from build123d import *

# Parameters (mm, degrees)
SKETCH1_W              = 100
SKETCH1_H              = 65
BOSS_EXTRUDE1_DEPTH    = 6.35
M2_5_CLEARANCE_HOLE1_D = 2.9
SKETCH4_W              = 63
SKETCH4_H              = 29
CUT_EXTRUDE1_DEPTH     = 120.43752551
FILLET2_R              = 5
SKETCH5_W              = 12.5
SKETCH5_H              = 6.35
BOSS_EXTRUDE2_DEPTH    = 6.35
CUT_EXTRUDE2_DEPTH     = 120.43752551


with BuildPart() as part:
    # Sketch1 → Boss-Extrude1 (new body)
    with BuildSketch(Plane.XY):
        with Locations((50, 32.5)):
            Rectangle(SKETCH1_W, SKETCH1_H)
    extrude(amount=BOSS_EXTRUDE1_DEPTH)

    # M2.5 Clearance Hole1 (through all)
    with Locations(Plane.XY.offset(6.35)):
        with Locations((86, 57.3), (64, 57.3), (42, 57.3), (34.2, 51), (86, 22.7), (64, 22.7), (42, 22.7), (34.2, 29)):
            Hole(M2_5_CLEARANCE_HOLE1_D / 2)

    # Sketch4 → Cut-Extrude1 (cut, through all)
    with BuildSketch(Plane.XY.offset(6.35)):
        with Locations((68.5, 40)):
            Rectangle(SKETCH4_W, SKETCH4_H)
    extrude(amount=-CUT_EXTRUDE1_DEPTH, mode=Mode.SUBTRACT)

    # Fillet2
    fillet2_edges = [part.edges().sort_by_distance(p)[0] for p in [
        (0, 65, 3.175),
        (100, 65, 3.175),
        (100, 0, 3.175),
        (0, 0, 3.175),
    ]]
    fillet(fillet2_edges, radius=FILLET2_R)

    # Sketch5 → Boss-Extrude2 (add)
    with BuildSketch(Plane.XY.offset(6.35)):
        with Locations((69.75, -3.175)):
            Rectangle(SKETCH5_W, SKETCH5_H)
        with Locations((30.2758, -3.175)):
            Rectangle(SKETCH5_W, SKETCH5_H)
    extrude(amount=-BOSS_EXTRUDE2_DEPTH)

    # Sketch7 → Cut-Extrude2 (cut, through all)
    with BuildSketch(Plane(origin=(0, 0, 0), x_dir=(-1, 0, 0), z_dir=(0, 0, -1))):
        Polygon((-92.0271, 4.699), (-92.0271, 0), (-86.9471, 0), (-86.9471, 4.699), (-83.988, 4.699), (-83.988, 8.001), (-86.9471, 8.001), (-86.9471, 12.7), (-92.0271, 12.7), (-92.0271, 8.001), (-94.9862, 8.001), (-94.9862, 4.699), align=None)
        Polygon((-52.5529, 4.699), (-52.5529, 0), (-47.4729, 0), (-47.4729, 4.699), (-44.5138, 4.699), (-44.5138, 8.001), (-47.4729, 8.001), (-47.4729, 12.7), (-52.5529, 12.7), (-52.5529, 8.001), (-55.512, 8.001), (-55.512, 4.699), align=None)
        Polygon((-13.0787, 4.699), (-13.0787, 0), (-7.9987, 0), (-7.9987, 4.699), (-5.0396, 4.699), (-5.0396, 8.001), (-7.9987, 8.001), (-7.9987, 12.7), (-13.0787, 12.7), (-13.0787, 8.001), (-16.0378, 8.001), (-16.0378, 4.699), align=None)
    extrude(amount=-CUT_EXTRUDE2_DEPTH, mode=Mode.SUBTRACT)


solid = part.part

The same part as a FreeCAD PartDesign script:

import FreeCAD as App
import Part
import Sketcher
from FreeCAD import Vector
Q = App.Units.Quantity


def edges_at(feature, points):
    """Names of the edges that pass closest to the given points."""
    edges = feature.Shape.Edges
    near = lambda p: min(range(len(edges)), key=lambda i: edges[i].distToShape(Part.Vertex(*p))[0])
    return sorted({f"Edge{near(p) + 1}" for p in points})

doc = App.newDocument("Part")
body = doc.addObject("PartDesign::Body", "Body")

# Sketch on XY plane
sketch1 = body.newObject("Sketcher::SketchObject", "Sketch")
sketch1.AttachmentSupport = (doc.getObject("XY_Plane"), [""])
sketch1.MapMode = "FlatFace"
sketch1.addGeometry([
    Part.LineSegment(Vector(0, 65, 0), Vector(0, 0, 0)),
    Part.LineSegment(Vector(0, 0, 0), Vector(100, 0, 0)),
    Part.LineSegment(Vector(100, 0, 0), Vector(100, 65, 0)),
    Part.LineSegment(Vector(100, 65, 0), Vector(0, 65, 0)),
], False)
sketch1.addConstraint([
    Sketcher.Constraint("Coincident", 0, 2, 1, 1),
    Sketcher.Constraint("Coincident", 1, 2, 2, 1),
    Sketcher.Constraint("Coincident", 2, 2, 3, 1),
    Sketcher.Constraint("Coincident", 3, 2, 0, 1),
    Sketcher.Constraint("Vertical", 0),
    Sketcher.Constraint("Horizontal", 1),
    Sketcher.Constraint("Vertical", 2),
    Sketcher.Constraint("Horizontal", 3),
    Sketcher.Constraint("Coincident", 0, 2, -1, 1),
    Sketcher.Constraint("DistanceX", 1, 1, 1, 2, Q("100 mm")),
    Sketcher.Constraint("DistanceY", 0, 2, 0, 1, Q("65 mm")),
])
pad1 = body.newObject("PartDesign::Pad", "Pad")
pad1.Profile = sketch1
pad1.Length = 6.35

# Sketch on XY plane
sketch2 = body.newObject("Sketcher::SketchObject", "Sketch001")
sketch2.AttachmentSupport = (doc.getObject("XY_Plane"), [""])
sketch2.MapMode = "FlatFace"
sketch2.AttachmentOffset = App.Placement(Vector(0, 0, 6.35), App.Rotation())
sketch2.addGeometry([
    Part.Circle(Vector(86, 57.3, 0), Vector(0, 0, 1), 1.45),  # 0
    Part.Circle(Vector(64, 57.3, 0), Vector(0, 0, 1), 1.45),  # 1
    Part.Circle(Vector(42, 57.3, 0), Vector(0, 0, 1), 1.45),  # 2
    Part.Circle(Vector(34.2, 51, 0), Vector(0, 0, 1), 1.45),  # 3
    Part.Circle(Vector(86, 22.7, 0), Vector(0, 0, 1), 1.45),  # 4
    Part.Circle(Vector(64, 22.7, 0), Vector(0, 0, 1), 1.45),  # 5
    Part.Circle(Vector(42, 22.7, 0), Vector(0, 0, 1), 1.45),  # 6
    Part.Circle(Vector(34.2, 29, 0), Vector(0, 0, 1), 1.45),  # 7
], False)
sketch2.addConstraint([
    Sketcher.Constraint("Equal", 0, 1),
    Sketcher.Constraint("Equal", 1, 2),
    Sketcher.Constraint("Equal", 2, 3),
    Sketcher.Constraint("Equal", 3, 4),
    Sketcher.Constraint("Equal", 4, 5),
    Sketcher.Constraint("Equal", 5, 6),
    Sketcher.Constraint("Equal", 6, 7),
    Sketcher.Constraint("Horizontal", 0, 3, 1, 3),
    Sketcher.Constraint("Horizontal", 1, 3, 2, 3),
    Sketcher.Constraint("Horizontal", 4, 3, 5, 3),
    Sketcher.Constraint("Horizontal", 5, 3, 6, 3),
    Sketcher.Constraint("Vertical", 0, 3, 4, 3),
    Sketcher.Constraint("Vertical", 1, 3, 5, 3),
    Sketcher.Constraint("Vertical", 2, 3, 6, 3),
    Sketcher.Constraint("Vertical", 3, 3, 7, 3),
    Sketcher.Constraint("Diameter", 0, Q("2.9 mm")),
    Sketcher.Constraint("DistanceX", -1, 1, 0, 3, Q("86 mm")),
    Sketcher.Constraint("DistanceX", -1, 1, 1, 3, Q("64 mm")),
    Sketcher.Constraint("DistanceX", -1, 1, 2, 3, Q("42 mm")),
    Sketcher.Constraint("DistanceY", -1, 1, 3, 3, Q("51 mm")),
    Sketcher.Constraint("DistanceY", -1, 1, 7, 3, Q("29 mm")),
    Sketcher.Constraint("DistanceY", -1, 1, 0, 3, Q("57.3 mm")),
    Sketcher.Constraint("DistanceX", -1, 1, 3, 3, Q("34.2 mm")),
    Sketcher.Constraint("DistanceY", -1, 1, 4, 3, Q("22.7 mm")),
])
doc.recompute()
hole = body.newObject("PartDesign::Hole", "Hole")
hole.Profile = sketch2
hole.ThreadType = "None"
hole.Diameter = 2.9
hole.DepthType = "ThroughAll"

# Sketch on XY plane
sketch3 = body.newObject("Sketcher::SketchObject", "Sketch002")
sketch3.AttachmentSupport = (doc.getObject("XY_Plane"), [""])
sketch3.MapMode = "FlatFace"
sketch3.AttachmentOffset = App.Placement(Vector(0, 0, 6.35), App.Rotation())
sketch3.addGeometry([
    Part.LineSegment(Vector(37, 54.5, 0), Vector(37, 25.5, 0)),
    Part.LineSegment(Vector(37, 25.5, 0), Vector(100, 25.5, 0)),
    Part.LineSegment(Vector(100, 25.5, 0), Vector(100, 54.5, 0)),
    Part.LineSegment(Vector(100, 54.5, 0), Vector(37, 54.5, 0)),
], False)
sketch3.addConstraint([
    Sketcher.Constraint("Coincident", 0, 2, 1, 1),
    Sketcher.Constraint("Coincident", 1, 2, 2, 1),
    Sketcher.Constraint("Coincident", 2, 2, 3, 1),
    Sketcher.Constraint("Coincident", 3, 2, 0, 1),
    Sketcher.Constraint("Vertical", 0),
    Sketcher.Constraint("Horizontal", 1),
    Sketcher.Constraint("Vertical", 2),
    Sketcher.Constraint("Horizontal", 3),
    Sketcher.Constraint("DistanceX", 1, 1, 1, 2, Q("63 mm")),
    Sketcher.Constraint("DistanceY", 0, 2, 0, 1, Q("29 mm")),
    Sketcher.Constraint("DistanceX", -1, 1, 0, 2, Q("37 mm")),
    Sketcher.Constraint("DistanceY", -1, 1, 0, 2, Q("25.5 mm")),
])
pocket1 = body.newObject("PartDesign::Pocket", "Pocket")
pocket1.Profile = sketch3
pocket1.Type = "ThroughAll"
doc.recompute()

fillet = body.newObject("PartDesign::Fillet", "Fillet")
fillet.Base = (pocket1, edges_at(pocket1, [
    (0, 65, 3.175),
    (100, 65, 3.175),
    (100, 0, 3.175),
    (0, 0, 3.175),
]))
fillet.Radius = 5

# Sketch on XY plane
sketch4 = body.newObject("Sketcher::SketchObject", "Sketch003")
sketch4.AttachmentSupport = (doc.getObject("XY_Plane"), [""])
sketch4.MapMode = "FlatFace"
sketch4.AttachmentOffset = App.Placement(Vector(0, 0, 6.35), App.Rotation())
sketch4.addGeometry([
    Part.LineSegment(Vector(63.5, 0, 0), Vector(63.5, -6.35, 0)),  # 0
    Part.LineSegment(Vector(63.5, -6.35, 0), Vector(76, -6.35, 0)),  # 1
    Part.LineSegment(Vector(76, -6.35, 0), Vector(76, 0, 0)),  # 2
    Part.LineSegment(Vector(76, 0, 0), Vector(63.5, 0, 0)),  # 3
    Part.LineSegment(Vector(24.0258, 0, 0), Vector(24.0258, -6.35, 0)),  # 4
    Part.LineSegment(Vector(24.0258, -6.35, 0), Vector(36.5258, -6.35, 0)),  # 5
    Part.LineSegment(Vector(36.5258, -6.35, 0), Vector(36.5258, 0, 0)),  # 6
    Part.LineSegment(Vector(36.5258, 0, 0), Vector(24.0258, 0, 0)),  # 7
], False)
sketch4.addConstraint([
    Sketcher.Constraint("Coincident", 0, 2, 1, 1),
    Sketcher.Constraint("Coincident", 1, 2, 2, 1),
    Sketcher.Constraint("Coincident", 2, 2, 3, 1),
    Sketcher.Constraint("Coincident", 3, 2, 0, 1),
    Sketcher.Constraint("Coincident", 4, 2, 5, 1),
    Sketcher.Constraint("Coincident", 5, 2, 6, 1),
    Sketcher.Constraint("Coincident", 6, 2, 7, 1),
    Sketcher.Constraint("Coincident", 7, 2, 4, 1),
    Sketcher.Constraint("Vertical", 0),
    Sketcher.Constraint("Horizontal", 1),
    Sketcher.Constraint("Vertical", 2),
    Sketcher.Constraint("Horizontal", 3),
    Sketcher.Constraint("Vertical", 4),
    Sketcher.Constraint("Horizontal", 5),
    Sketcher.Constraint("Vertical", 6),
    Sketcher.Constraint("Horizontal", 7),
    Sketcher.Constraint("PointOnObject", 2, 2, -1),
    Sketcher.Constraint("PointOnObject", 6, 2, -1),
    Sketcher.Constraint("Horizontal", 1, 2, 4, 2),
    Sketcher.Constraint("Equal", 3, 5),
    Sketcher.Constraint("DistanceX", 1, 1, 1, 2, Q("12.5 mm")),
    Sketcher.Constraint("DistanceX", -1, 1, 1, 2, Q("76 mm")),
    Sketcher.Constraint("DistanceY", 0, 2, 0, 1, Q("6.35 mm")),
    Sketcher.Constraint("DistanceX", -1, 1, 4, 2, Q("24.0258 mm")),
])
pad2 = body.newObject("PartDesign::Pad", "Pad001")
pad2.Profile = sketch4
pad2.Length = 6.35
pad2.Reversed = True

# Sketch on XY plane
sketch5 = body.newObject("Sketcher::SketchObject", "Sketch004")
sketch5.AttachmentSupport = (doc.getObject("XY_Plane"), [""])
sketch5.MapMode = "FlatFace"
sketch5.addGeometry([
    Part.LineSegment(Vector(92.0271, 4.699, 0), Vector(92.0271, 0, 0)),  # 0
    Part.LineSegment(Vector(92.0271, 0, 0), Vector(86.9471, 0, 0)),  # 1
    Part.LineSegment(Vector(86.9471, 0, 0), Vector(86.9471, 4.699, 0)),  # 2
    Part.LineSegment(Vector(86.9471, 4.699, 0), Vector(83.988, 4.699, 0)),  # 3
    Part.LineSegment(Vector(83.988, 4.699, 0), Vector(83.988, 8.001, 0)),  # 4
    Part.LineSegment(Vector(83.988, 8.001, 0), Vector(86.9471, 8.001, 0)),  # 5
    Part.LineSegment(Vector(86.9471, 8.001, 0), Vector(86.9471, 12.7, 0)),  # 6
    Part.LineSegment(Vector(86.9471, 12.7, 0), Vector(92.0271, 12.7, 0)),  # 7
    Part.LineSegment(Vector(92.0271, 12.7, 0), Vector(92.0271, 8.001, 0)),  # 8
    Part.LineSegment(Vector(92.0271, 8.001, 0), Vector(94.9862, 8.001, 0)),  # 9
    Part.LineSegment(Vector(94.9862, 8.001, 0), Vector(94.9862, 4.699, 0)),  # 10
    Part.LineSegment(Vector(94.9862, 4.699, 0), Vector(92.0271, 4.699, 0)),  # 11
    Part.LineSegment(Vector(52.5529, 4.699, 0), Vector(52.5529, 0, 0)),  # 12
    Part.LineSegment(Vector(52.5529, 0, 0), Vector(47.4729, 0, 0)),  # 13
    Part.LineSegment(Vector(47.4729, 0, 0), Vector(47.4729, 4.699, 0)),  # 14
    Part.LineSegment(Vector(47.4729, 4.699, 0), Vector(44.5138, 4.699, 0)),  # 15
    Part.LineSegment(Vector(44.5138, 4.699, 0), Vector(44.5138, 8.001, 0)),  # 16
    Part.LineSegment(Vector(44.5138, 8.001, 0), Vector(47.4729, 8.001, 0)),  # 17
    Part.LineSegment(Vector(47.4729, 8.001, 0), Vector(47.4729, 12.7, 0)),  # 18
    Part.LineSegment(Vector(47.4729, 12.7, 0), Vector(52.5529, 12.7, 0)),  # 19
    Part.LineSegment(Vector(52.5529, 12.7, 0), Vector(52.5529, 8.001, 0)),  # 20
    Part.LineSegment(Vector(52.5529, 8.001, 0), Vector(55.512, 8.001, 0)),  # 21
    Part.LineSegment(Vector(55.512, 8.001, 0), Vector(55.512, 4.699, 0)),  # 22
    Part.LineSegment(Vector(55.512, 4.699, 0), Vector(52.5529, 4.699, 0)),  # 23
    Part.LineSegment(Vector(13.0787, 4.699, 0), Vector(13.0787, 0, 0)),  # 24
    Part.LineSegment(Vector(13.0787, 0, 0), Vector(7.9987, 0, 0)),  # 25
    Part.LineSegment(Vector(7.9987, 0, 0), Vector(7.9987, 4.699, 0)),  # 26
    Part.LineSegment(Vector(7.9987, 4.699, 0), Vector(5.0396, 4.699, 0)),  # 27
    Part.LineSegment(Vector(5.0396, 4.699, 0), Vector(5.0396, 8.001, 0)),  # 28
    Part.LineSegment(Vector(5.0396, 8.001, 0), Vector(7.9987, 8.001, 0)),  # 29
    Part.LineSegment(Vector(7.9987, 8.001, 0), Vector(7.9987, 12.7, 0)),  # 30
    Part.LineSegment(Vector(7.9987, 12.7, 0), Vector(13.0787, 12.7, 0)),  # 31
    Part.LineSegment(Vector(13.0787, 12.7, 0), Vector(13.0787, 8.001, 0)),  # 32
    Part.LineSegment(Vector(13.0787, 8.001, 0), Vector(16.0378, 8.001, 0)),  # 33
    Part.LineSegment(Vector(16.0378, 8.001, 0), Vector(16.0378, 4.699, 0)),  # 34
    Part.LineSegment(Vector(16.0378, 4.699, 0), Vector(13.0787, 4.699, 0)),  # 35
], False)
sketch5.addConstraint([
    Sketcher.Constraint("Coincident", 0, 2, 1, 1),
    Sketcher.Constraint("Coincident", 1, 2, 2, 1),
    Sketcher.Constraint("Coincident", 2, 2, 3, 1),
    Sketcher.Constraint("Coincident", 3, 2, 4, 1),
    Sketcher.Constraint("Coincident", 4, 2, 5, 1),
    Sketcher.Constraint("Coincident", 5, 2, 6, 1),
    Sketcher.Constraint("Coincident", 6, 2, 7, 1),
    Sketcher.Constraint("Coincident", 7, 2, 8, 1),
    Sketcher.Constraint("Coincident", 8, 2, 9, 1),
    Sketcher.Constraint("Coincident", 9, 2, 10, 1),
    Sketcher.Constraint("Coincident", 10, 2, 11, 1),
    Sketcher.Constraint("Coincident", 11, 2, 0, 1),
    Sketcher.Constraint("Coincident", 12, 2, 13, 1),
    Sketcher.Constraint("Coincident", 13, 2, 14, 1),
    Sketcher.Constraint("Coincident", 14, 2, 15, 1),
    Sketcher.Constraint("Coincident", 15, 2, 16, 1),
    Sketcher.Constraint("Coincident", 16, 2, 17, 1),
    Sketcher.Constraint("Coincident", 17, 2, 18, 1),
    Sketcher.Constraint("Coincident", 18, 2, 19, 1),
    Sketcher.Constraint("Coincident", 19, 2, 20, 1),
    Sketcher.Constraint("Coincident", 20, 2, 21, 1),
    Sketcher.Constraint("Coincident", 21, 2, 22, 1),
    Sketcher.Constraint("Coincident", 22, 2, 23, 1),
    Sketcher.Constraint("Coincident", 23, 2, 12, 1),
    Sketcher.Constraint("Coincident", 24, 2, 25, 1),
    Sketcher.Constraint("Coincident", 25, 2, 26, 1),
    Sketcher.Constraint("Coincident", 26, 2, 27, 1),
    Sketcher.Constraint("Coincident", 27, 2, 28, 1),
    Sketcher.Constraint("Coincident", 28, 2, 29, 1),
    Sketcher.Constraint("Coincident", 29, 2, 30, 1),
    Sketcher.Constraint("Coincident", 30, 2, 31, 1),
    Sketcher.Constraint("Coincident", 31, 2, 32, 1),
    Sketcher.Constraint("Coincident", 32, 2, 33, 1),
    Sketcher.Constraint("Coincident", 33, 2, 34, 1),
    Sketcher.Constraint("Coincident", 34, 2, 35, 1),
    Sketcher.Constraint("Coincident", 35, 2, 24, 1),
    Sketcher.Constraint("Vertical", 0),
    Sketcher.Constraint("Horizontal", 1),
    Sketcher.Constraint("Vertical", 2),
    Sketcher.Constraint("Horizontal", 3),
    Sketcher.Constraint("Vertical", 4),
    Sketcher.Constraint("Horizontal", 5),
    Sketcher.Constraint("Vertical", 6),
    Sketcher.Constraint("Horizontal", 7),
    Sketcher.Constraint("Vertical", 8),
    Sketcher.Constraint("Horizontal", 9),
    Sketcher.Constraint("Vertical", 10),
    Sketcher.Constraint("Horizontal", 11),
    Sketcher.Constraint("Vertical", 12),
    Sketcher.Constraint("Horizontal", 13),
    Sketcher.Constraint("Vertical", 14),
    Sketcher.Constraint("Horizontal", 15),
    Sketcher.Constraint("Vertical", 16),
    Sketcher.Constraint("Horizontal", 17),
    Sketcher.Constraint("Vertical", 18),
    Sketcher.Constraint("Horizontal", 19),
    Sketcher.Constraint("Vertical", 20),
    Sketcher.Constraint("Horizontal", 21),
    Sketcher.Constraint("Vertical", 22),
    Sketcher.Constraint("Horizontal", 23),
    Sketcher.Constraint("Vertical", 24),
    Sketcher.Constraint("Horizontal", 25),
    Sketcher.Constraint("Vertical", 26),
    Sketcher.Constraint("Horizontal", 27),
    Sketcher.Constraint("Vertical", 28),
    Sketcher.Constraint("Horizontal", 29),
    Sketcher.Constraint("Vertical", 30),
    Sketcher.Constraint("Horizontal", 31),
    Sketcher.Constraint("Vertical", 32),
    Sketcher.Constraint("Horizontal", 33),
    Sketcher.Constraint("Vertical", 34),
    Sketcher.Constraint("Horizontal", 35),
    Sketcher.Constraint("PointOnObject", 0, 2, -1),
    Sketcher.Constraint("PointOnObject", 12, 2, -1),
    Sketcher.Constraint("PointOnObject", 24, 2, -1),
    Sketcher.Constraint("Horizontal", 5, 2, 8, 2),
    Sketcher.Constraint("Horizontal", 3, 2, 10, 2),
    Sketcher.Constraint("Horizontal", 11, 2, 14, 2),
    Sketcher.Constraint("Horizontal", 9, 2, 16, 2),
    Sketcher.Constraint("Horizontal", 7, 2, 18, 2),
    Sketcher.Constraint("Horizontal", 17, 2, 20, 2),
    Sketcher.Constraint("Horizontal", 15, 2, 22, 2),
    Sketcher.Constraint("Horizontal", 23, 2, 26, 2),
    Sketcher.Constraint("Horizontal", 21, 2, 28, 2),
    Sketcher.Constraint("Horizontal", 19, 2, 30, 2),
    Sketcher.Constraint("Horizontal", 29, 2, 32, 2),
    Sketcher.Constraint("Horizontal", 27, 2, 34, 2),
    Sketcher.Constraint("Vertical", 2, 2, 5, 2),
    Sketcher.Constraint("Vertical", 0, 2, 7, 2),
    Sketcher.Constraint("Vertical", 14, 2, 17, 2),
    Sketcher.Constraint("Vertical", 12, 2, 19, 2),
    Sketcher.Constraint("Vertical", 26, 2, 29, 2),
    Sketcher.Constraint("Vertical", 24, 2, 31, 2),
    Sketcher.Constraint("Equal", 5, 9),
    Sketcher.Constraint("Equal", 7, 13),
    Sketcher.Constraint("Equal", 11, 15),
    Sketcher.Constraint("Equal", 17, 21),
    Sketcher.Constraint("Equal", 19, 25),
    Sketcher.Constraint("Equal", 23, 27),
    Sketcher.Constraint("Equal", 29, 33),
    Sketcher.Constraint("Equal", 2, 6),
    Sketcher.Constraint("DistanceX", 1, 2, 1, 1, Q("5.08 mm")),
    Sketcher.Constraint("DistanceY", -1, 1, 6, 2, Q("12.7 mm")),
    Sketcher.Constraint("DistanceY", 0, 2, 0, 1, Q("4.699 mm")),
    Sketcher.Constraint("DistanceX", 3, 2, 3, 1, Q("2.9591 mm")),
    Sketcher.Constraint("DistanceX", -1, 1, 3, 2, Q("83.988 mm")),
    Sketcher.Constraint("DistanceX", -1, 1, 21, 2, Q("55.512 mm")),
    Sketcher.Constraint("DistanceX", -1, 1, 24, 2, Q("13.0787 mm")),
])
pocket2 = body.newObject("PartDesign::Pocket", "Pocket001")
pocket2.Profile = sketch5
pocket2.Type = "ThroughAll"
pocket2.Reversed = True

doc.recompute()
